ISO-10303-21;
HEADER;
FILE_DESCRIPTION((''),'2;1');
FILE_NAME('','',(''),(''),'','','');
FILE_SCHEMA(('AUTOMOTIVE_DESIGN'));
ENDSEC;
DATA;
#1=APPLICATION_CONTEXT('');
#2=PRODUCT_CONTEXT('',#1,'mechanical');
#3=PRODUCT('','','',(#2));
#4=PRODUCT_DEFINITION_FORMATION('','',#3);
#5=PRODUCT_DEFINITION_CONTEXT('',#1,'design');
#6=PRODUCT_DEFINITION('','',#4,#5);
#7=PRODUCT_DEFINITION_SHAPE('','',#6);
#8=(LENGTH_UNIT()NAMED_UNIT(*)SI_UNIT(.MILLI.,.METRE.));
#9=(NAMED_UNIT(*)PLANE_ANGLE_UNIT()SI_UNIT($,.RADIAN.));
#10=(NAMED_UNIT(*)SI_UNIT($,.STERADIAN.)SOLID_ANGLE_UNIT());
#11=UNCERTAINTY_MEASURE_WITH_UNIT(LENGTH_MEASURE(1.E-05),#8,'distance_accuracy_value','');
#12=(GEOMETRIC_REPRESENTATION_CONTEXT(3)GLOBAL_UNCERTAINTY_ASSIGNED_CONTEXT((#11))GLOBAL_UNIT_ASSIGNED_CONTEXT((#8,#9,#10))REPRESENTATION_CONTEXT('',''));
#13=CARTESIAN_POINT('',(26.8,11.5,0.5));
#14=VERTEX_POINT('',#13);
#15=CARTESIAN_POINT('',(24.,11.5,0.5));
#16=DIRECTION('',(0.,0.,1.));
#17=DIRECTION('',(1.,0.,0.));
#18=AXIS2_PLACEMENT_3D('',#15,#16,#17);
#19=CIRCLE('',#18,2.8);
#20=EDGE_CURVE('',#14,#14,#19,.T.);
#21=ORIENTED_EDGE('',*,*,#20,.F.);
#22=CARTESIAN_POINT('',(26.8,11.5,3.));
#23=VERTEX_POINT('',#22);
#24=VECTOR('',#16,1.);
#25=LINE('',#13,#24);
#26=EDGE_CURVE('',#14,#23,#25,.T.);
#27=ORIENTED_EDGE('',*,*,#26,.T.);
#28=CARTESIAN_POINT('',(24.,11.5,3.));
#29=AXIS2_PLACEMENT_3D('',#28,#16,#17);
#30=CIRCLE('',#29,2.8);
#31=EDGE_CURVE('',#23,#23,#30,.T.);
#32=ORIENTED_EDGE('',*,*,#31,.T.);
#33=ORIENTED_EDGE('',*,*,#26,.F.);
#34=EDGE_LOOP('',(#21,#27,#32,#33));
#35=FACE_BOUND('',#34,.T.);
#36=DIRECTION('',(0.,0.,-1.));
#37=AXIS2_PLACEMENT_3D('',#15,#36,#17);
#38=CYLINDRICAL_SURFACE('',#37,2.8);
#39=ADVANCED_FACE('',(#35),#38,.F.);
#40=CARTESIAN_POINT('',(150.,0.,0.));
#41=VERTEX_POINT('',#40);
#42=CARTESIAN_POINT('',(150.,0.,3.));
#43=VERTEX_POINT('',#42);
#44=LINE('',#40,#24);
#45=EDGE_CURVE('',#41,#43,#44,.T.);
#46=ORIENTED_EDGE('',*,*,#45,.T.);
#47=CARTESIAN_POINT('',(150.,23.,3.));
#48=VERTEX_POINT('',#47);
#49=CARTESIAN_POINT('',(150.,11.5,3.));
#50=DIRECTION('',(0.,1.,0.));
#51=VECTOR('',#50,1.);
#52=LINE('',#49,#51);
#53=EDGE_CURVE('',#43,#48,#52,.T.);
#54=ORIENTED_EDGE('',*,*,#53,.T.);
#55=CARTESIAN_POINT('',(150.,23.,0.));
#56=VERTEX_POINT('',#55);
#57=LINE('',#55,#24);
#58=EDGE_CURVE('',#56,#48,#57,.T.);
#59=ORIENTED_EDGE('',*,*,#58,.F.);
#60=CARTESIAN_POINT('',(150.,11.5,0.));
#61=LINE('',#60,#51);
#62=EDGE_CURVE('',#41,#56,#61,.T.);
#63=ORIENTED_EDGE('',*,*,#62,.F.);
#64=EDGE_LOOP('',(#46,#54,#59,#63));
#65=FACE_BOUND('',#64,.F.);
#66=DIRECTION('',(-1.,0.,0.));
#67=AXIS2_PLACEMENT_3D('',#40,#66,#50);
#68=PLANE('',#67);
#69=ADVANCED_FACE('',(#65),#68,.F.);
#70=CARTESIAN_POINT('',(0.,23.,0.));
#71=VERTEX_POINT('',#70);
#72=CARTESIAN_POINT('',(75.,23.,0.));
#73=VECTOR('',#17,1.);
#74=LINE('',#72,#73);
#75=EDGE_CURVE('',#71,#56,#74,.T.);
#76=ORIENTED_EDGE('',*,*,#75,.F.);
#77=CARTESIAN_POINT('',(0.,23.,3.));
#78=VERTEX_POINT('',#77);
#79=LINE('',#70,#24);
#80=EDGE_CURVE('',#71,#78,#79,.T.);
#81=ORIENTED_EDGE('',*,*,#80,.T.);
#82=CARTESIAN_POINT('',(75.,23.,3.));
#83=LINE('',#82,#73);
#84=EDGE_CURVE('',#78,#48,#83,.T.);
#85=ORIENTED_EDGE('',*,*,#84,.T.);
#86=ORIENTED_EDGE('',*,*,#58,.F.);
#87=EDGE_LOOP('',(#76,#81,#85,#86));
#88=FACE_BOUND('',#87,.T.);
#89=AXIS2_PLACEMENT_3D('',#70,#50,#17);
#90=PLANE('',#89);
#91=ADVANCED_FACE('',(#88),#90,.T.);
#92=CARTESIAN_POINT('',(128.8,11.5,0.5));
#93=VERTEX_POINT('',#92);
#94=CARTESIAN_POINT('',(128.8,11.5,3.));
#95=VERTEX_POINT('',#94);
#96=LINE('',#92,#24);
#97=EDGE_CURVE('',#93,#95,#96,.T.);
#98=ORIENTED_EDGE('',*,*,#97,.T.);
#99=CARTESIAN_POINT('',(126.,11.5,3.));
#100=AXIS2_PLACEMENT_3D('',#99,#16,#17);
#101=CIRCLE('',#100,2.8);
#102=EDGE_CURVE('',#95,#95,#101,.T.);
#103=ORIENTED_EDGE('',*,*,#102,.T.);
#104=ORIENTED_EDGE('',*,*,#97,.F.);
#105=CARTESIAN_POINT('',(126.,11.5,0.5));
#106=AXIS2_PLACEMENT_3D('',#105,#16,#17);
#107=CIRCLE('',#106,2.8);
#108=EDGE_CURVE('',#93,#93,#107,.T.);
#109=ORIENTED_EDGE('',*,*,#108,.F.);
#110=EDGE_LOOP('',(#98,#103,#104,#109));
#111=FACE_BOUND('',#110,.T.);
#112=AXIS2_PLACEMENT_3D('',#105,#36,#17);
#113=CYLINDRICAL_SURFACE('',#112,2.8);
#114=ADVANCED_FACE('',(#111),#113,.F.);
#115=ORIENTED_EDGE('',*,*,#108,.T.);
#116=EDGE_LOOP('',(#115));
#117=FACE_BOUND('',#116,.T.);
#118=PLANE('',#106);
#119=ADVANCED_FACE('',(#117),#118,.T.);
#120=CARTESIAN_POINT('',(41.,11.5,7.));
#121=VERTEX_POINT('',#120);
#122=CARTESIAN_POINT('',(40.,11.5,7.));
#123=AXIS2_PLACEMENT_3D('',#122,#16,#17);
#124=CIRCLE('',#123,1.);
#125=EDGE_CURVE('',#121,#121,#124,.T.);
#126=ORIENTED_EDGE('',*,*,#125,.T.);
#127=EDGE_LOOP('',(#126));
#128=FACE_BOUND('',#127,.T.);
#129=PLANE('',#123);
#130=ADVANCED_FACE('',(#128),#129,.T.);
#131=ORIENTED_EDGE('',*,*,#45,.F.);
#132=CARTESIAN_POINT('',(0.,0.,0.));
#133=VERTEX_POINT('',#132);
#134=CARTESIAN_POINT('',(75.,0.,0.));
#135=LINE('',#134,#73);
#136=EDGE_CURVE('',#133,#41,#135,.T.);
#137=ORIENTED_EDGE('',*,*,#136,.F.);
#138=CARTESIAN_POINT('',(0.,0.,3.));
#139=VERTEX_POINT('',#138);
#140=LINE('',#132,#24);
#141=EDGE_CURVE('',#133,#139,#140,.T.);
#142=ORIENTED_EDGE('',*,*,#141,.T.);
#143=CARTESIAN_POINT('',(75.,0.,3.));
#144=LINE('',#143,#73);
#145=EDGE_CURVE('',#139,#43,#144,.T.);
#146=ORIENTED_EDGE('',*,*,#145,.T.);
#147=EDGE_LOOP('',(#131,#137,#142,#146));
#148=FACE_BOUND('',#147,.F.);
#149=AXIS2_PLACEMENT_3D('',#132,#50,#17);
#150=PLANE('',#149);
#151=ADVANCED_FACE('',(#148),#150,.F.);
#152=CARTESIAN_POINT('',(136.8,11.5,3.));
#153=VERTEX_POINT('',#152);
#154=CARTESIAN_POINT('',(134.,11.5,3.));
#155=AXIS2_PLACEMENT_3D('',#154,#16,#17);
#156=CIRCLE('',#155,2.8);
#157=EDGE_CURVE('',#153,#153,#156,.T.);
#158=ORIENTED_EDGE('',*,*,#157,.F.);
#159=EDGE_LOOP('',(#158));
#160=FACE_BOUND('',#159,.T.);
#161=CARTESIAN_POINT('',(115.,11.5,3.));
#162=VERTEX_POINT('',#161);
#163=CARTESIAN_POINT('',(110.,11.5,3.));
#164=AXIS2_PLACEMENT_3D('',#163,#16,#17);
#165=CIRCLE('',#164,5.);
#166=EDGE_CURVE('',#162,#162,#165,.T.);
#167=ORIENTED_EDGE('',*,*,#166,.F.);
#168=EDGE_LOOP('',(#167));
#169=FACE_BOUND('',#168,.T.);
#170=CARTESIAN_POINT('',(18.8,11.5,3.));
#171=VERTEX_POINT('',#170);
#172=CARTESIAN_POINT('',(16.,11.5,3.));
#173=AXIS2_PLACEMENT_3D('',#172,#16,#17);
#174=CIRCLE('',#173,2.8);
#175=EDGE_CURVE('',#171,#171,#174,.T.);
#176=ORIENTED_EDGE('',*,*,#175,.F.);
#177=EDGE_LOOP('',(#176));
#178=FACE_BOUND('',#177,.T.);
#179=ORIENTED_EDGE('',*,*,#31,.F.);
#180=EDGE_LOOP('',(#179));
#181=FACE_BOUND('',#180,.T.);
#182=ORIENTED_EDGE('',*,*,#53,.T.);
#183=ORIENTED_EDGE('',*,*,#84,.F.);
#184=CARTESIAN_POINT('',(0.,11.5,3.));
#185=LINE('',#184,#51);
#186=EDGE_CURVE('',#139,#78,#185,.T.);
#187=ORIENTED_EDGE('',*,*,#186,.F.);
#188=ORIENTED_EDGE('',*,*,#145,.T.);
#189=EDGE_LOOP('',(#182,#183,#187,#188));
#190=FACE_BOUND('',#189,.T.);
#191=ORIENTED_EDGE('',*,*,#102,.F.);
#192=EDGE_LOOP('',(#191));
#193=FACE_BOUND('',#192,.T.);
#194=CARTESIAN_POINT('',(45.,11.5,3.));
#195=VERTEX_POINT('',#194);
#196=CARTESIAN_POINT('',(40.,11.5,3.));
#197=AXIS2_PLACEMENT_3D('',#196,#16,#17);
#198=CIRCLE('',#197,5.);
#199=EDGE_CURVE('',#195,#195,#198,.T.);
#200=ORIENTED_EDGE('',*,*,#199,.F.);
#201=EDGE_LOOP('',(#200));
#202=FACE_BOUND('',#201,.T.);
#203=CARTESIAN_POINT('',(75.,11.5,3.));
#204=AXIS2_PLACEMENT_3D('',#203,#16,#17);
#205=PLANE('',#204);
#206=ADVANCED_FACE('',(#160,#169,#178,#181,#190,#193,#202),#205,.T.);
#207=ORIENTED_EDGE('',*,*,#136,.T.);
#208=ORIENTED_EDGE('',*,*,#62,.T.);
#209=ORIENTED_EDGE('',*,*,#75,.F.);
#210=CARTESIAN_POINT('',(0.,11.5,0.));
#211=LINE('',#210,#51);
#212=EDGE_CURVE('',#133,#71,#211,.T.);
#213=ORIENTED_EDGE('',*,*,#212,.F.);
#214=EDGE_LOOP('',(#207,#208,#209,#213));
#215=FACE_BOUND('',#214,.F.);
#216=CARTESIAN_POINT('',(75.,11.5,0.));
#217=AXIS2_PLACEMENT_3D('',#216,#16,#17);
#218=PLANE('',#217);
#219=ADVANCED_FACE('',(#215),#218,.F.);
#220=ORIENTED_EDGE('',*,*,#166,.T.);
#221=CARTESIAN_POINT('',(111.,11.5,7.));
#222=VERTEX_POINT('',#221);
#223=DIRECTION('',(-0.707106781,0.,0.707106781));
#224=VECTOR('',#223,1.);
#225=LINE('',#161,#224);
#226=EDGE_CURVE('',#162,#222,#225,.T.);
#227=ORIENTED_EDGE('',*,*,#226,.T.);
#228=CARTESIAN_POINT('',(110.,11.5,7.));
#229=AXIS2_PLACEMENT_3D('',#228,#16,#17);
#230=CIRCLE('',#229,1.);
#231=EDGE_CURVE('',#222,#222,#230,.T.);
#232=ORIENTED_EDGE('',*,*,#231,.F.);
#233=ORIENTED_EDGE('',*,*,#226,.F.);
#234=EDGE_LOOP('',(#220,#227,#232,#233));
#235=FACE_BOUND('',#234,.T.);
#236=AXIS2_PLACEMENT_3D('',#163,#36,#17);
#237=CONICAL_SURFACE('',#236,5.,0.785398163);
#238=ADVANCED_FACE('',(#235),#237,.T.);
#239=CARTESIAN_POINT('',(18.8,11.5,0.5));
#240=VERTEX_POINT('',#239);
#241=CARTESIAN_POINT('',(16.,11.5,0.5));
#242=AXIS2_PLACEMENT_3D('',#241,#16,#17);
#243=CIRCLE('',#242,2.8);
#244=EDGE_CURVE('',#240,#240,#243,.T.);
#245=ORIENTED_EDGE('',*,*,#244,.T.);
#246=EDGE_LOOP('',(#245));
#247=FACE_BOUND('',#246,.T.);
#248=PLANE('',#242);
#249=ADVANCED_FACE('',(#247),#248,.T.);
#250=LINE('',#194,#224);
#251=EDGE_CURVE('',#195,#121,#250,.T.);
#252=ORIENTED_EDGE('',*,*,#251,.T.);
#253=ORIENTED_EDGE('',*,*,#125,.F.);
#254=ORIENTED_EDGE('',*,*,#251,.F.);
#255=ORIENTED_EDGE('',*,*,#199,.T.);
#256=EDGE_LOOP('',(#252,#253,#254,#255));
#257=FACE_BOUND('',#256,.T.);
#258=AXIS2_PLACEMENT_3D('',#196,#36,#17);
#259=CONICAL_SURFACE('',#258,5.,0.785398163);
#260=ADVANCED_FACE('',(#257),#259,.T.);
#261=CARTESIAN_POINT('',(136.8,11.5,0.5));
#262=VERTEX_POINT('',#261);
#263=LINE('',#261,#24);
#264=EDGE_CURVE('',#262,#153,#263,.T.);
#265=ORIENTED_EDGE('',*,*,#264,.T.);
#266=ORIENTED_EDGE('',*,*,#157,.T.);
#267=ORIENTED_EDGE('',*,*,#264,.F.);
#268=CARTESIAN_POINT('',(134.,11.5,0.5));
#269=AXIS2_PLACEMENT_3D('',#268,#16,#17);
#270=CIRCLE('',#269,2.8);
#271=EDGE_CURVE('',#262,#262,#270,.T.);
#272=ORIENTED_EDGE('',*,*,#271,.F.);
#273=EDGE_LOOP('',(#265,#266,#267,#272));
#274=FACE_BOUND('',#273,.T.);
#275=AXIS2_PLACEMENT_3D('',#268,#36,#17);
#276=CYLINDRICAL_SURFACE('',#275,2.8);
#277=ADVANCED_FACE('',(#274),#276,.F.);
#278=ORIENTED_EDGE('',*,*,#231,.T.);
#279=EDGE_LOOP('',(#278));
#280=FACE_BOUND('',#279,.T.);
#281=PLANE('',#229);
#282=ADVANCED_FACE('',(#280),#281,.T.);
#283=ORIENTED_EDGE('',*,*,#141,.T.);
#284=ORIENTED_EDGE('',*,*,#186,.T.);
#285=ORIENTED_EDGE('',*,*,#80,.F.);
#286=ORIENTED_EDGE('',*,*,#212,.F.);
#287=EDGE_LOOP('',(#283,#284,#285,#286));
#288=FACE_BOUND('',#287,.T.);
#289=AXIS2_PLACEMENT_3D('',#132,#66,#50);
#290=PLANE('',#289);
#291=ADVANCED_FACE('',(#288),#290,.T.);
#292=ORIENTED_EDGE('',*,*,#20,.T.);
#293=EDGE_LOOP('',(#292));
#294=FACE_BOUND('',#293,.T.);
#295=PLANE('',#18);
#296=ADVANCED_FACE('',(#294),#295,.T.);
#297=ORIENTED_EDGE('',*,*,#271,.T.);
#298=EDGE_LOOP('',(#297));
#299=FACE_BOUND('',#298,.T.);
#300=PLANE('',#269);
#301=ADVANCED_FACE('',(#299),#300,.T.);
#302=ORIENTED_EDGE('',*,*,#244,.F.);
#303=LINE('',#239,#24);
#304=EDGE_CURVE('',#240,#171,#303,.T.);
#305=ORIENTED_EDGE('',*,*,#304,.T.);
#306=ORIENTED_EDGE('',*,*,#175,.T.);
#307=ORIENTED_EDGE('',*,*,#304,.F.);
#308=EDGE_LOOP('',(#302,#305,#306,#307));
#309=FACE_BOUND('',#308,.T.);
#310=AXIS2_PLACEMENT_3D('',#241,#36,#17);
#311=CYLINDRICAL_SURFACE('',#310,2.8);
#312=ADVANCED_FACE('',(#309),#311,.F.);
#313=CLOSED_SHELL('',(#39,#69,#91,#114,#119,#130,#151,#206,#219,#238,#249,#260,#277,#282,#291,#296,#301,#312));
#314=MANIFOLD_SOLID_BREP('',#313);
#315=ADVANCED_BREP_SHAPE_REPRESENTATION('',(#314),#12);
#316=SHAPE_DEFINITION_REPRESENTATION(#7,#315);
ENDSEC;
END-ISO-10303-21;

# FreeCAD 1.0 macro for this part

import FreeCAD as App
import Part
import Sketcher

V = App.Vector

doc = App.newDocument("Part")
body = doc.addObject("PartDesign::Body", "Body")

# Sketch on XY plane
sketch1 = body.newObject("Sketcher::SketchObject", "Sketch")
sketch1.AttachmentSupport = (doc.getObject("XY_Plane"), [""])
sketch1.MapMode = "FlatFace"
sketch1.AttachmentOffset = App.Placement(V(0, 0, 0.5), App.Rotation())
sketch1.addGeometry(Part.Circle(V(126, 11.5, 0), V(0, 0, 1), 2.8), False)
sketch1.addConstraint([
    Sketcher.Constraint("Diameter", 0, 5.6),
    Sketcher.Constraint("DistanceX", -1, 1, 0, 3, 126.0),
    Sketcher.Constraint("DistanceY", -1, 1, 0, 3, 11.5),
])
pad1 = body.newObject("PartDesign::Pad", "Pad")
pad1.Profile = sketch1
pad1.Length = 2.5
body2 = doc.addObject("PartDesign::Body", "Body001")

# Sketch on XY plane
sketch2 = body2.newObject("Sketcher::SketchObject", "Sketch001")
sketch2.AttachmentSupport = (doc.getObject("XY_Plane001"), [""])
sketch2.MapMode = "FlatFace"
sketch2.AttachmentOffset = App.Placement(V(0, 0, 0.5), App.Rotation())
sketch2.addGeometry(Part.Circle(V(24, 11.5, 0), V(0, 0, 1), 2.8), False)
sketch2.addConstraint([
    Sketcher.Constraint("Diameter", 0, 5.6),
    Sketcher.Constraint("DistanceX", -1, 1, 0, 3, 24.0),
    Sketcher.Constraint("DistanceY", -1, 1, 0, 3, 11.5),
])
pad2 = body2.newObject("PartDesign::Pad", "Pad001")
pad2.Profile = sketch2
pad2.Length = 2.5
body3 = doc.addObject("PartDesign::Body", "Body002")

# Sketch on XY plane
sketch3 = body3.newObject("Sketcher::SketchObject", "Sketch002")
sketch3.AttachmentSupport = (doc.getObject("XY_Plane002"), [""])
sketch3.MapMode = "FlatFace"
sketch3.AttachmentOffset = App.Placement(V(0, 0, 0.5), App.Rotation())
sketch3.addGeometry(Part.Circle(V(134, 11.5, 0), V(0, 0, 1), 2.8), False)
sketch3.addConstraint([
    Sketcher.Constraint("Diameter", 0, 5.6),
    Sketcher.Constraint("DistanceX", -1, 1, 0, 3, 134.0),
    Sketcher.Constraint("DistanceY", -1, 1, 0, 3, 11.5),
])
pad3 = body3.newObject("PartDesign::Pad", "Pad002")
pad3.Profile = sketch3
pad3.Length = 2.5
body4 = doc.addObject("PartDesign::Body", "Body003")
body4.AllowCompound = True

# Sketch on XY plane
sketch4 = body4.newObject("Sketcher::SketchObject", "Sketch003")
sketch4.AttachmentSupport = (doc.getObject("XY_Plane003"), [""])
sketch4.MapMode = "FlatFace"
sketch4.AttachmentOffset = App.Placement(V(0, 0, 0.5), App.Rotation())
sketch4.addGeometry(Part.Circle(V(16, 11.5, 0), V(0, 0, 1), 2.8), False)
sketch4.addConstraint([
    Sketcher.Constraint("Diameter", 0, 5.6),
    Sketcher.Constraint("DistanceX", -1, 1, 0, 3, 16.0),
    Sketcher.Constraint("DistanceY", -1, 1, 0, 3, 11.5),
])
pad4 = body4.newObject("PartDesign::Pad", "Pad003")
pad4.Profile = sketch4
pad4.Length = 2.5
doc.recompute()

boolean = body4.newObject("PartDesign::Boolean", "Boolean")
boolean.Type = "Fuse"
boolean.addObjects([body])
doc.recompute()

boolean2 = body4.newObject("PartDesign::Boolean", "Boolean001")
boolean2.Type = "Fuse"
boolean2.addObjects([body2])
doc.recompute()

boolean3 = body4.newObject("PartDesign::Boolean", "Boolean002")
boolean3.Type = "Fuse"
boolean3.addObjects([body3])
body5 = doc.addObject("PartDesign::Body", "Body004")

# Sketch on XZ plane
sketch5 = body5.newObject("Sketcher::SketchObject", "Sketch004")
sketch5.AttachmentSupport = (doc.getObject("XZ_Plane004"), [""])
sketch5.MapMode = "FlatFace"
sketch5.AttachmentOffset = App.Placement(V(0, 0, -11.5), App.Rotation())
sketch5.addGeometry([
    Part.LineSegment(V(40, 3, 0), V(45, 3, 0)),
    Part.LineSegment(V(45, 3, 0), V(41, 7, 0)),
    Part.LineSegment(V(41, 7, 0), V(40, 7, 0)),
    Part.LineSegment(V(40, 7, 0), V(40, 3, 0)),
], False)
sketch5.addGeometry(Part.LineSegment(V(40, 3, 0), V(40, 7, 0)), True)  # axis
sketch5.addConstraint([
    Sketcher.Constraint("Coincident", 0, 2, 1, 1),
    Sketcher.Constraint("Coincident", 1, 2, 2, 1),
    Sketcher.Constraint("Coincident", 2, 2, 3, 1),
    Sketcher.Constraint("Coincident", 3, 2, 0, 1),
    Sketcher.Constraint("Horizontal", 0),
    Sketcher.Constraint("Horizontal", 2),
    Sketcher.Constraint("Vertical", 3),
    Sketcher.Constraint("Vertical", 4),
    Sketcher.Constraint("Coincident", 4, 1, 3, 2),
    Sketcher.Constraint("Horizontal", 1, 2, 4, 2),
    Sketcher.Constraint("DistanceX", 0, 1, 0, 2, 5.0),
    Sketcher.Constraint("DistanceX", 2, 2, 2, 1, 1.0),
    Sketcher.Constraint("DistanceY", 3, 2, 3, 1, 4.0),
    Sketcher.Constraint("DistanceX", -1, 1, 0, 2, 45.0),
    Sketcher.Constraint("DistanceY", -1, 1, 0, 2, 3.0),
])
revolution = body5.newObject("PartDesign::Revolution", "Revolution")
revolution.Profile = sketch5
revolution.ReferenceAxis = (sketch5, ["Axis0"])
revolution.Angle = 360
body6 = doc.addObject("PartDesign::Body", "Body005")

# Sketch on XY plane
sketch6 = body6.newObject("Sketcher::SketchObject", "Sketch005")
sketch6.AttachmentSupport = (doc.getObject("XY_Plane005"), [""])
sketch6.MapMode = "FlatFace"
sketch6.addGeometry([
    Part.LineSegment(V(0, 23, 0), V(0, 0, 0)),
    Part.LineSegment(V(0, 0, 0), V(150, 0, 0)),
    Part.LineSegment(V(150, 0, 0), V(150, 23, 0)),
    Part.LineSegment(V(150, 23, 0), V(0, 23, 0)),
], False)
sketch6.addConstraint([
    Sketcher.Constraint("Coincident", 0, 2, 1, 1),
    Sketcher.Constraint("Coincident", 1, 2, 2, 1),
    Sketcher.Constraint("Coincident", 2, 2, 3, 1),
    Sketcher.Constraint("Coincident", 3, 2, 0, 1),
    Sketcher.Constraint("Vertical", 0),
    Sketcher.Constraint("Horizontal", 1),
    Sketcher.Constraint("Vertical", 2),
    Sketcher.Constraint("Horizontal", 3),
    Sketcher.Constraint("Coincident", 0, 2, -1, 1),
    Sketcher.Constraint("DistanceX", 1, 1, 1, 2, 150.0),
    Sketcher.Constraint("DistanceY", 0, 2, 0, 1, 23.0),
])
pad5 = body6.newObject("PartDesign::Pad", "Pad004")
pad5.Profile = sketch6
pad5.Length = 3
body7 = doc.addObject("PartDesign::Body", "Body006")
body7.AllowCompound = True

# Sketch on XZ plane
sketch7 = body7.newObject("Sketcher::SketchObject", "Sketch006")
sketch7.AttachmentSupport = (doc.getObject("XZ_Plane006"), [""])
sketch7.MapMode = "FlatFace"
sketch7.AttachmentOffset = App.Placement(V(0, 0, -11.5), App.Rotation())
sketch7.addGeometry([
    Part.LineSegment(V(110, 3, 0), V(115, 3, 0)),
    Part.LineSegment(V(115, 3, 0), V(111, 7, 0)),
    Part.LineSegment(V(111, 7, 0), V(110, 7, 0)),
    Part.LineSegment(V(110, 7, 0), V(110, 3, 0)),
], False)
sketch7.addGeometry(Part.LineSegment(V(110, 3, 0), V(110, 7, 0)), True)  # axis
sketch7.addConstraint([
    Sketcher.Constraint("Coincident", 0, 2, 1, 1),
    Sketcher.Constraint("Coincident", 1, 2, 2, 1),
    Sketcher.Constraint("Coincident", 2, 2, 3, 1),
    Sketcher.Constraint("Coincident", 3, 2, 0, 1),
    Sketcher.Constraint("Horizontal", 0),
    Sketcher.Constraint("Horizontal", 2),
    Sketcher.Constraint("Vertical", 3),
    Sketcher.Constraint("Vertical", 4),
    Sketcher.Constraint("Coincident", 4, 1, 3, 2),
    Sketcher.Constraint("Horizontal", 1, 2, 4, 2),
    Sketcher.Constraint("DistanceX", 0, 1, 0, 2, 5.0),
    Sketcher.Constraint("DistanceX", 2, 2, 2, 1, 1.0),
    Sketcher.Constraint("DistanceY", 3, 2, 3, 1, 4.0),
    Sketcher.Constraint("DistanceX", -1, 1, 0, 2, 115.0),
    Sketcher.Constraint("DistanceY", -1, 1, 0, 2, 3.0),
])
revolution2 = body7.newObject("PartDesign::Revolution", "Revolution001")
revolution2.Profile = sketch7
revolution2.ReferenceAxis = (sketch7, ["Axis0"])
revolution2.Angle = 360
doc.recompute()

boolean4 = body7.newObject("PartDesign::Boolean", "Boolean003")
boolean4.Type = "Fuse"
boolean4.addObjects([body5])
doc.recompute()

boolean5 = body7.newObject("PartDesign::Boolean", "Boolean004")
boolean5.Type = "Fuse"
boolean5.addObjects([body6])
doc.recompute()

boolean6 = body7.newObject("PartDesign::Boolean", "Boolean005")
boolean6.Type = "Cut"
boolean6.addObjects([body4])

doc.recompute()
